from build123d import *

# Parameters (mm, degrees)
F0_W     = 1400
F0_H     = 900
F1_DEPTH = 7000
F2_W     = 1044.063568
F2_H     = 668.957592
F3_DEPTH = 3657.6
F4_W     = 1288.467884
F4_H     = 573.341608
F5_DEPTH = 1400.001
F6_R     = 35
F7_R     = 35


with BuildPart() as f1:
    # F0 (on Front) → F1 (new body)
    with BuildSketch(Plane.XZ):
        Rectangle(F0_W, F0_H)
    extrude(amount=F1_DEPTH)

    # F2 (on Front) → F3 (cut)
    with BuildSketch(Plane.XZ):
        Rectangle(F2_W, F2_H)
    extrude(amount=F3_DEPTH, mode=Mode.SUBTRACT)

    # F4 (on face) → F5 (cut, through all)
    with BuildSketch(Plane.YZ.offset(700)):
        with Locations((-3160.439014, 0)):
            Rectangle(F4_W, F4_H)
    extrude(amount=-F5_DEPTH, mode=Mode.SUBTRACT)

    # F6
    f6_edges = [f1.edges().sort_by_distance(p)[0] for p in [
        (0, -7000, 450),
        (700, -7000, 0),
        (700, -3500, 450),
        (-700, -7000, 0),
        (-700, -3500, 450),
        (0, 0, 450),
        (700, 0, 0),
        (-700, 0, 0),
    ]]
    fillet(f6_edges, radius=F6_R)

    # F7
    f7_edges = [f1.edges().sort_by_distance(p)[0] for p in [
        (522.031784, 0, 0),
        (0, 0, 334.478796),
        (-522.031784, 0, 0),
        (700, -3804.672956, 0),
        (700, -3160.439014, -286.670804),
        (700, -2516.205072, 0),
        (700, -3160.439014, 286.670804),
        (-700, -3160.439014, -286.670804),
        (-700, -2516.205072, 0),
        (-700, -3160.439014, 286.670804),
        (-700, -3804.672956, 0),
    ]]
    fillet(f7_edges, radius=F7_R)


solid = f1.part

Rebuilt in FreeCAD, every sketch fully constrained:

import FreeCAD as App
import Part
import Sketcher


def edges_at(feature, points):
    """Names of the edges that pass closest to the given points."""
    edges = feature.Shape.Edges
    near = lambda p: min(range(len(edges)), key=lambda i: edges[i].distToShape(Part.Vertex(*p))[0])
    return sorted({f"Edge{near(p) + 1}" for p in points})

doc = App.newDocument("Part")
body = doc.addObject("PartDesign::Body", "Body")

# Sketch on XZ plane
sketch1 = body.newObject("Sketcher::SketchObject", "Sketch")
sketch1.AttachmentSupport = (doc.getObject("XZ_Plane"), [""])
sketch1.MapMode = "FlatFace"
sketch1.addGeometry([
    Part.LineSegment(App.Vector(-700, 450, 0), App.Vector(-700, -450, 0)),
    Part.LineSegment(App.Vector(-700, -450, 0), App.Vector(700, -450, 0)),
    Part.LineSegment(App.Vector(700, -450, 0), App.Vector(700, 450, 0)),
    Part.LineSegment(App.Vector(700, 450, 0), App.Vector(-700, 450, 0)),
], False)
sketch1.addConstraint([
    Sketcher.Constraint("Coincident", 0, 2, 1, 1),
    Sketcher.Constraint("Coincident", 1, 2, 2, 1),
    Sketcher.Constraint("Coincident", 2, 2, 3, 1),
    Sketcher.Constraint("Coincident", 3, 2, 0, 1),
    Sketcher.Constraint("Vertical", 0),
    Sketcher.Constraint("Horizontal", 1),
    Sketcher.Constraint("Vertical", 2),
    Sketcher.Constraint("Horizontal", 3),
    Sketcher.Constraint("Symmetric", 0, 2, 2, 2, -1, 1),
    Sketcher.Constraint("DistanceX", 1, 1, 1, 2, 1400.0),
    Sketcher.Constraint("DistanceY", 0, 2, 0, 1, 900.0),
])
pad1 = body.newObject("PartDesign::Pad", "Pad")
pad1.Profile = sketch1
pad1.Length = 7000

# Sketch on XZ plane
sketch2 = body.newObject("Sketcher::SketchObject", "Sketch001")
sketch2.AttachmentSupport = (doc.getObject("XZ_Plane"), [""])
sketch2.MapMode = "FlatFace"
sketch2.addGeometry([
    Part.LineSegment(App.Vector(-522, 334, 0), App.Vector(-522, -334, 0)),
    Part.LineSegment(App.Vector(-522, -334, 0), App.Vector(522, -334, 0)),
    Part.LineSegment(App.Vector(522, -334, 0), App.Vector(522, 334, 0)),
    Part.LineSegment(App.Vector(522, 334, 0), App.Vector(-522, 334, 0)),
], False)
sketch2.addConstraint([
    Sketcher.Constraint("Coincident", 0, 2, 1, 1),
    Sketcher.Constraint("Coincident", 1, 2, 2, 1),
    Sketcher.Constraint("Coincident", 2, 2, 3, 1),
    Sketcher.Constraint("Coincident", 3, 2, 0, 1),
    Sketcher.Constraint("Vertical", 0),
    Sketcher.Constraint("Horizontal", 1),
    Sketcher.Constraint("Vertical", 2),
    Sketcher.Constraint("Horizontal", 3),
    Sketcher.Constraint("Symmetric", 0, 2, 2, 2, -1, 1),
    Sketcher.Constraint("DistanceX", 1, 1, 1, 2, 1044.063568),
    Sketcher.Constraint("DistanceY", 0, 2, 0, 1, 668.957592),
])
pocket1 = body.newObject("PartDesign::Pocket", "Pocket")
pocket1.Profile = sketch2
pocket1.Length = 3657.6
pocket1.Reversed = True

# Sketch on YZ plane
sketch3 = body.newObject("Sketcher::SketchObject", "Sketch002")
sketch3.AttachmentSupport = (doc.getObject("YZ_Plane"), [""])
sketch3.MapMode = "FlatFace"
sketch3.AttachmentOffset = App.Placement(App.Vector(0, 0, 700), App.Rotation())
sketch3.addGeometry([
    Part.LineSegment(App.Vector(-3805, 287, 0), App.Vector(-3805, -287, 0)),
    Part.LineSegment(App.Vector(-3805, -287, 0), App.Vector(-2516, -287, 0)),
    Part.LineSegment(App.Vector(-2516, -287, 0), App.Vector(-2516, 287, 0)),
    Part.LineSegment(App.Vector(-2516, 287, 0), App.Vector(-3805, 287, 0)),
], False)
sketch3.addConstraint([
    Sketcher.Constraint("Coincident", 0, 2, 1, 1),
    Sketcher.Constraint("Coincident", 1, 2, 2, 1),
    Sketcher.Constraint("Coincident", 2, 2, 3, 1),
    Sketcher.Constraint("Coincident", 3, 2, 0, 1),
    Sketcher.Constraint("Vertical", 0),
    Sketcher.Constraint("Horizontal", 1),
    Sketcher.Constraint("Vertical", 2),
    Sketcher.Constraint("Horizontal", 3),
    Sketcher.Constraint("DistanceY", 0, 2, 0, 1, 573.341608),
    Sketcher.Constraint("DistanceX", 1, 1, 1, 2, 1288.467884),
    Sketcher.Constraint("DistanceX", 0, 2, -1, 1, 3804.672956),
    Sketcher.Constraint("DistanceY", 0, 2, -1, 1, 286.670804),
])
pocket2 = body.newObject("PartDesign::Pocket", "Pocket001")
pocket2.Profile = sketch3
pocket2.Type = "ThroughAll"
doc.recompute()

fillet = body.newObject("PartDesign::Fillet", "Fillet")
fillet.Base = (pocket2, edges_at(pocket2, [
    (0, -7000, 450),
    (700, -7000, 0),
    (700, -3500, 450),
    (-700, -7000, 0),
    (-700, -3500, 450),
    (0, 0, 450),
    (700, 0, 0),
    (-700, 0, 0),
]))
fillet.Radius = 35
doc.recompute()

fillet2 = body.newObject("PartDesign::Fillet", "Fillet001")
fillet2.Base = (fillet, edges_at(fillet, [
    (522.032, 0, 0),
    (0, 0, 334.479),
    (-522.032, 0, 0),
    (700, -3804.673, 0),
    (700, -3160.439, -286.671),
    (700, -2516.205, 0),
    (700, -3160.439, 286.671),
    (-700, -3160.439, -286.671),
    (-700, -2516.205, 0),
    (-700, -3160.439, 286.671),
    (-700, -3804.673, 0),
]))
fillet2.Radius = 35

doc.recompute()
